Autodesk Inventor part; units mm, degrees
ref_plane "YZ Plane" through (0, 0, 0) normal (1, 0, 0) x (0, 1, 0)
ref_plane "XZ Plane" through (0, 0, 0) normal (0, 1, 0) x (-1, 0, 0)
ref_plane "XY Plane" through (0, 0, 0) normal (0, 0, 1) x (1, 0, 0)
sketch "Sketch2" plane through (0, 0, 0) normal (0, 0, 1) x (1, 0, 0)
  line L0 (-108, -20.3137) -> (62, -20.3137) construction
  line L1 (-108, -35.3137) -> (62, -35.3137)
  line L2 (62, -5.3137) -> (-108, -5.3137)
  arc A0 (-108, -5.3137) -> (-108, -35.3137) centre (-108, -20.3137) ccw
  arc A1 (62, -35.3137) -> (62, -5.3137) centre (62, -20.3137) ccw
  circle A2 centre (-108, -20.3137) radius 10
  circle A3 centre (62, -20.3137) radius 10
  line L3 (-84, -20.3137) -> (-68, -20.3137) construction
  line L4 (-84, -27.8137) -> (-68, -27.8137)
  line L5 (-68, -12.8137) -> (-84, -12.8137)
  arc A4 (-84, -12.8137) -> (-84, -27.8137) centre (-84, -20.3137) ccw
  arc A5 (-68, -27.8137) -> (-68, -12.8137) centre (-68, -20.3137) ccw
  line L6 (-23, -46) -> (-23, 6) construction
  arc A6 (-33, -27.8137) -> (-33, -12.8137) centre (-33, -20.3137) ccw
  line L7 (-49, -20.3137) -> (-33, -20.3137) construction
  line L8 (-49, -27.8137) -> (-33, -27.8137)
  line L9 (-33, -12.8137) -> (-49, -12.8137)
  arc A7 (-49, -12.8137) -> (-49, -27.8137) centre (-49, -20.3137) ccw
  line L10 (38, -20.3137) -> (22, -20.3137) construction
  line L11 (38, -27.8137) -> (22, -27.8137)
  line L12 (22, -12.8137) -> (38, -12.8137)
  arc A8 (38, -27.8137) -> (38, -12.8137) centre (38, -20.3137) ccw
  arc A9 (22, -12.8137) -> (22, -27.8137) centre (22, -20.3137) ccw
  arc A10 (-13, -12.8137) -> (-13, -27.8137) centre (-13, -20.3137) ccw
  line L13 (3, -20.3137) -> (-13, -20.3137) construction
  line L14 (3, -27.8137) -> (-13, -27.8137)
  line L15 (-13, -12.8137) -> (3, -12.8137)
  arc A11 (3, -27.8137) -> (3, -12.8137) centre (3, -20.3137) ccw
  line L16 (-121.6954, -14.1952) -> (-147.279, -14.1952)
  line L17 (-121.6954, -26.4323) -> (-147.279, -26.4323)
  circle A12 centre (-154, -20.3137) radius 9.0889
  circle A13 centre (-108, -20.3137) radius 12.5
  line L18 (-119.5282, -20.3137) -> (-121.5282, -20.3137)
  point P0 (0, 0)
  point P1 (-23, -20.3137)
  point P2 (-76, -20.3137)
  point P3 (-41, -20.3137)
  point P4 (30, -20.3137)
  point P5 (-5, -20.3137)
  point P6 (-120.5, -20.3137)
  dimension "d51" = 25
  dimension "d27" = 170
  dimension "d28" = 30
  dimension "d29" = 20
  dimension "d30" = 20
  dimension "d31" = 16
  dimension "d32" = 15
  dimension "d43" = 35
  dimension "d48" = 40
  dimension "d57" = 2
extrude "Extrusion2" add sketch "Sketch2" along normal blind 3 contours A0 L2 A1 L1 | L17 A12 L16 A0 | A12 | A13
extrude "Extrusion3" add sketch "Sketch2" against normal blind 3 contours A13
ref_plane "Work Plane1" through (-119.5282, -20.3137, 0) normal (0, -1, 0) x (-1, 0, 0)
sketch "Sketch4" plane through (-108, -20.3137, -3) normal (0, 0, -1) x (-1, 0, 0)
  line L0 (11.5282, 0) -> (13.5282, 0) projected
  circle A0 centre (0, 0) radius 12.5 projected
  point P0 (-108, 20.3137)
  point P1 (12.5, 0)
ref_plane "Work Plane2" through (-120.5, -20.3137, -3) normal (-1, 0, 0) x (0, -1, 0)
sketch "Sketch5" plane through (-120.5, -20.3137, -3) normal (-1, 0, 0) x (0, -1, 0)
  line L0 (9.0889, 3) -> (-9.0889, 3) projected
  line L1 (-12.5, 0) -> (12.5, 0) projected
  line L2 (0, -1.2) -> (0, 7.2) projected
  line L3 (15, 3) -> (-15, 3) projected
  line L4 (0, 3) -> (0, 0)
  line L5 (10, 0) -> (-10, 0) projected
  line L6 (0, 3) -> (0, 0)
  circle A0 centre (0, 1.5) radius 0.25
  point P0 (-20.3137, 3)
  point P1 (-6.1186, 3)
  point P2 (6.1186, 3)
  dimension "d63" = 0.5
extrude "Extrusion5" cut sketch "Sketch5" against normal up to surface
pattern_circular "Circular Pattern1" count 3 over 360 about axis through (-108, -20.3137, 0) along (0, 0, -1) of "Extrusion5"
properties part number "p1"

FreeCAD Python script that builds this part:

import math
import FreeCAD as App
import Part
import Sketcher
from FreeCAD import Vector

doc = App.newDocument("Part")
body = doc.addObject("PartDesign::Body", "Body")

sketch1 = body.newObject("Sketcher::SketchObject", "Sketch")
sketch1.AttachmentSupport = (doc.getObject("XY_Plane"), [""])
sketch1.MapMode = "FlatFace"
sketch1.addGeometry([
    Part.ArcOfCircle(Part.Circle(Vector(-108, -20.3137, 0), Vector(0, 0, 1), 15), math.radians(-155.926668), math.radians(-90)),
    Part.LineSegment(Vector(-108, -35.3137, 0), Vector(62, -35.3137, 0)),
    Part.ArcOfCircle(Part.Circle(Vector(62, -20.3137, 0), Vector(0, 0, 1), 15), math.radians(-90), math.radians(90)),
    Part.LineSegment(Vector(62, -5.3137, 0), Vector(-108, -5.3137, 0)),
    Part.ArcOfCircle(Part.Circle(Vector(-108, -20.3137, 0), Vector(0, 0, 1), 15), math.radians(90), math.radians(155.927017)),
    Part.LineSegment(Vector(-121.6954, -14.1952, 0), Vector(-147.279, -14.1952, 0)),
    Part.ArcOfCircle(Part.Circle(Vector(-154, -20.3137, 0), Vector(0, 0, 1), 9.0889), math.radians(42.313338), math.radians(317.686196)),
    Part.LineSegment(Vector(-147.279, -26.4323, 0), Vector(-121.6954, -26.4323, 0)),
    Part.LineSegment(Vector(-68, -27.8137, 0), Vector(-84, -27.8137, 0)),
    Part.ArcOfCircle(Part.Circle(Vector(-84, -20.3137, 0), Vector(0, 0, 1), 7.5), math.radians(90), math.radians(270)),
    Part.LineSegment(Vector(-84, -12.8137, 0), Vector(-68, -12.8137, 0)),
    Part.ArcOfCircle(Part.Circle(Vector(-68, -20.3137, 0), Vector(0, 0, 1), 7.5), math.radians(-90), math.radians(90)),
    Part.ArcOfCircle(Part.Circle(Vector(-33, -20.3137, 0), Vector(0, 0, 1), 7.5), math.radians(-90), math.radians(90)),
    Part.LineSegment(Vector(-33, -27.8137, 0), Vector(-49, -27.8137, 0)),
    Part.ArcOfCircle(Part.Circle(Vector(-49, -20.3137, 0), Vector(0, 0, 1), 7.5), math.radians(90), math.radians(270)),
    Part.LineSegment(Vector(-49, -12.8137, 0), Vector(-33, -12.8137, 0)),
    Part.ArcOfCircle(Part.Circle(Vector(-13, -20.3137, 0), Vector(0, 0, 1), 7.5), math.radians(90), math.radians(270)),
    Part.LineSegment(Vector(-13, -12.8137, 0), Vector(3, -12.8137, 0)),
    Part.ArcOfCircle(Part.Circle(Vector(3, -20.3137, 0), Vector(0, 0, 1), 7.5), math.radians(-90), math.radians(90)),
    Part.LineSegment(Vector(3, -27.8137, 0), Vector(-13, -27.8137, 0)),
    Part.ArcOfCircle(Part.Circle(Vector(38, -20.3137, 0), Vector(0, 0, 1), 7.5), math.radians(-90), math.radians(90)),
    Part.LineSegment(Vector(38, -27.8137, 0), Vector(22, -27.8137, 0)),
    Part.ArcOfCircle(Part.Circle(Vector(22, -20.3137, 0), Vector(0, 0, 1), 7.5), math.radians(90), math.radians(270)),
    Part.LineSegment(Vector(22, -12.8137, 0), Vector(38, -12.8137, 0)),
    Part.Circle(Vector(62, -20.3137, 0), Vector(0, 0, 1), 10),
    Part.Circle(Vector(-108, -20.3137, 0), Vector(0, 0, 1), 10),
], False)
sketch1.addConstraint([
    Sketcher.Constraint("Tangent", 0, 2, 1, 1),
    Sketcher.Constraint("Tangent", 1, 2, 2, 1),
    Sketcher.Constraint("Tangent", 2, 2, 3, 1),
    Sketcher.Constraint("Tangent", 3, 2, 4, 1),
    Sketcher.Constraint("Coincident", 4, 2, 5, 1),
    Sketcher.Constraint("Coincident", 5, 2, 6, 1),
    Sketcher.Constraint("Coincident", 6, 2, 7, 1),
    Sketcher.Constraint("Coincident", 7, 2, 0, 1),
    Sketcher.Constraint("Tangent", 8, 2, 9, 2),
    Sketcher.Constraint("Tangent", 9, 1, 10, 1),
    Sketcher.Constraint("Tangent", 10, 2, 11, 2),
    Sketcher.Constraint("Tangent", 11, 1, 8, 1),
    Sketcher.Constraint("Tangent", 12, 1, 13, 1),
    Sketcher.Constraint("Tangent", 13, 2, 14, 2),
    Sketcher.Constraint("Tangent", 14, 1, 15, 1),
    Sketcher.Constraint("Tangent", 15, 2, 12, 2),
    Sketcher.Constraint("Tangent", 16, 1, 17, 1),
    Sketcher.Constraint("Tangent", 17, 2, 18, 2),
    Sketcher.Constraint("Tangent", 18, 1, 19, 1),
    Sketcher.Constraint("Tangent", 19, 2, 16, 2),
    Sketcher.Constraint("Tangent", 20, 1, 21, 1),
    Sketcher.Constraint("Tangent", 21, 2, 22, 2),
    Sketcher.Constraint("Tangent", 22, 1, 23, 1),
    Sketcher.Constraint("Tangent", 23, 2, 20, 2),
    Sketcher.Constraint("Horizontal", 1),
    Sketcher.Constraint("Horizontal", 3),
    Sketcher.Constraint("Horizontal", 5),
    Sketcher.Constraint("Horizontal", 7),
    Sketcher.Constraint("Horizontal", 8),
    Sketcher.Constraint("Horizontal", 10),
    Sketcher.Constraint("Horizontal", 13),
    Sketcher.Constraint("Horizontal", 15),
    Sketcher.Constraint("Horizontal", 17),
    Sketcher.Constraint("Horizontal", 19),
    Sketcher.Constraint("Horizontal", 21),
    Sketcher.Constraint("Horizontal", 23),
    Sketcher.Constraint("Coincident", 4, 3, 0, 3),
    Sketcher.Constraint("Coincident", 24, 3, 2, 3),
    Sketcher.Constraint("Coincident", 25, 3, 0, 3),
    Sketcher.Constraint("Equal", 0, 2),
    Sketcher.Constraint("Equal", 11, 12),
    Sketcher.Constraint("Equal", 14, 16),
    Sketcher.Constraint("Equal", 18, 20),
    Sketcher.Constraint("Equal", 24, 25),
    Sketcher.Constraint("Horizontal", 4, 3, 6, 3),
    Sketcher.Constraint("Horizontal", 6, 3, 9, 3),
    Sketcher.Constraint("Horizontal", 11, 3, 12, 3),
    Sketcher.Constraint("Horizontal", 14, 3, 16, 3),
    Sketcher.Constraint("Horizontal", 18, 3, 20, 3),
    Sketcher.Constraint("Vertical", 5, 2, 6, 2),
    Sketcher.Constraint("Equal", 10, 13),
    Sketcher.Constraint("Equal", 15, 17),
    Sketcher.Constraint("Equal", 19, 21),
    Sketcher.Constraint("Diameter", 24, 20.0),
    Sketcher.Constraint("Radius", 0, 15.0),
    Sketcher.Constraint("Radius", 9, 7.5),
    Sketcher.Constraint("DistanceX", 1, 1, 1, 2, 170.0),
    Sketcher.Constraint("DistanceX", 8, 2, 8, 1, 16.0),
    Sketcher.Constraint("DistanceX", 0, 3, 11, 3, 40.0),
    Sketcher.Constraint("DistanceX", 11, 3, 12, 3, 35.0),
    Sketcher.Constraint("DistanceX", 12, 3, 16, 3, 20.0),
    Sketcher.Constraint("DistanceX", 18, 3, 20, 3, 35.0),
    Sketcher.Constraint("DistanceX", 0, 3, -1, 1, 108.0),
    Sketcher.Constraint("DistanceX", 6, 3, -1, 1, 154.0),
    Sketcher.Constraint("Radius", 6, 9.089),
    Sketcher.Constraint("DistanceX", 5, 2, 5, 1, 25.5836),
    Sketcher.Constraint("DistanceY", 0, 3, -1, 1, 20.3137),
])
pad1 = body.newObject("PartDesign::Pad", "Pad")
pad1.Profile = sketch1
pad1.Length = 3

sketch2 = body.newObject("Sketcher::SketchObject", "Sketch001")
sketch2.AttachmentSupport = (doc.getObject("XY_Plane"), [""])
sketch2.MapMode = "FlatFace"
sketch2.addGeometry([
    Part.Circle(Vector(-108, -20.3137, 0), Vector(0, 0, 1), 12.5),
    Part.Circle(Vector(-108, -20.3137, 0), Vector(0, 0, 1), 10),
], False)
sketch2.addConstraint([
    Sketcher.Constraint("Coincident", 1, 3, 0, 3),
    Sketcher.Constraint("Diameter", 0, 25.0),
    Sketcher.Constraint("Diameter", 1, 20.0),
    Sketcher.Constraint("DistanceX", 0, 3, -1, 1, 108.0),
    Sketcher.Constraint("DistanceY", 0, 3, -1, 1, 20.3137),
])
pad2 = body.newObject("PartDesign::Pad", "Pad001")
pad2.Profile = sketch2
pad2.Length = 3
pad2.Reversed = True

sketch3 = body.newObject("Sketcher::SketchObject", "Sketch002")
sketch3.AttachmentSupport = (doc.getObject("YZ_Plane"), [""])
sketch3.MapMode = "FlatFace"
sketch3.AttachmentOffset = App.Placement(Vector(0, 0, -120.5), App.Rotation())
sketch3.addGeometry(Part.Circle(Vector(-20.3137, -1.5, 0), Vector(0, 0, 1), 0.25), False)
sketch3.addConstraint([
    Sketcher.Constraint("Diameter", 0, 0.5),
    Sketcher.Constraint("DistanceY", 0, 3, -1, 1, 1.5),
    Sketcher.Constraint("DistanceX", 0, 3, -1, 1, 20.3137),
])
pocket1 = body.newObject("PartDesign::Pocket", "Pocket")
pocket1.Profile = sketch3
pocket1.Type = "UpToFirst"
pocket1.Reversed = True
doc.recompute()

datumline = body.newObject("PartDesign::Line", "DatumLine")
datumline.Placement = App.Placement(Vector(-108, -20.3137, 0), App.Rotation(Vector(0, 0, 1), Vector(0, 0, 1)))
polarpattern = body.newObject("PartDesign::PolarPattern", "PolarPattern")
polarpattern.Originals = [pocket1]
polarpattern.Axis = (datumline, [""])
polarpattern.Angle = 360
polarpattern.Occurrences = 3
body.Tip = polarpattern

doc.recompute()
